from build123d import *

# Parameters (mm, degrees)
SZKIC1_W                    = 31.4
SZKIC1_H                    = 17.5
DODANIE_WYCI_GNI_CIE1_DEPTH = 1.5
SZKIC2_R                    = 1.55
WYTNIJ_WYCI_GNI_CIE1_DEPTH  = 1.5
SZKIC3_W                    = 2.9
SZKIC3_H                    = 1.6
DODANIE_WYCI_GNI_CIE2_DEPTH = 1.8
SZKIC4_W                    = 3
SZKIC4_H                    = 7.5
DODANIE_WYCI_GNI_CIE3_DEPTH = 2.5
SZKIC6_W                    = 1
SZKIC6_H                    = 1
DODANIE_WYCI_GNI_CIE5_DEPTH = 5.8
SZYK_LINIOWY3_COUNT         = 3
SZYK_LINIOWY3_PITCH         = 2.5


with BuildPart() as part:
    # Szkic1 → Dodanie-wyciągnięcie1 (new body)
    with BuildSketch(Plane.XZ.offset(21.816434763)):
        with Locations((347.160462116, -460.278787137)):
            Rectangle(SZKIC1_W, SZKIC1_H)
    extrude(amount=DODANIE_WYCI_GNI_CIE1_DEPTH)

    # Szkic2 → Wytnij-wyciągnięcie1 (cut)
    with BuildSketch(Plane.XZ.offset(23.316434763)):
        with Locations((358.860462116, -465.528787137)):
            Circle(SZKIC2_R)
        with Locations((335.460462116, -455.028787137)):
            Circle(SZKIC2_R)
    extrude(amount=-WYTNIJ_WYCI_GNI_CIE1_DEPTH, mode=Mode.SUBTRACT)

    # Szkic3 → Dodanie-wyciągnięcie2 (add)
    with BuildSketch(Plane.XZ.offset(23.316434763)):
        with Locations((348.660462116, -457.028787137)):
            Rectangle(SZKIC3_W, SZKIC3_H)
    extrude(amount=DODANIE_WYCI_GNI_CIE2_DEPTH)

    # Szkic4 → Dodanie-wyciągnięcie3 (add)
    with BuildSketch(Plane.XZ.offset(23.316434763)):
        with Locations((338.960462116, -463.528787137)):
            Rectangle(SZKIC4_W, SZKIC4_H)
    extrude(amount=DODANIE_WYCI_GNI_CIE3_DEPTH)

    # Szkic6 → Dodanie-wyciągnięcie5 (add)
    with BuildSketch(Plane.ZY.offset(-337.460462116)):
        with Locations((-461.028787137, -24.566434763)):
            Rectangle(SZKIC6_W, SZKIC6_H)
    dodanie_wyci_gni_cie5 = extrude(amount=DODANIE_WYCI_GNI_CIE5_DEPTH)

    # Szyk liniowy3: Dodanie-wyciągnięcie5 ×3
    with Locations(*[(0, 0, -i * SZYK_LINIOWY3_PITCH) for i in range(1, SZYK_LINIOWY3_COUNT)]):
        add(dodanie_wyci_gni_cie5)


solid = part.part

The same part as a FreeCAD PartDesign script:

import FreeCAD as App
import Part
import Sketcher


def add_polygon(sketch, points):
    """Adds a closed chain of lines whose ends are joined by coincident constraints."""
    first, n = sketch.GeometryCount, len(points)
    for a, b in zip(points, points[1:] + points[:1]):
        sketch.addGeometry(Part.LineSegment(App.Vector(*a, 0), App.Vector(*b, 0)), False)
    for i in range(n):
        sketch.addConstraint(Sketcher.Constraint("Coincident", first + i, 2, first + (i + 1) % n, 1))

doc = App.newDocument("Part")
body = doc.addObject("PartDesign::Body", "Body")

# Sketch on XZ plane
sketch1 = body.newObject("Sketcher::SketchObject", "Sketch")
sketch1.AttachmentSupport = (doc.getObject("XZ_Plane"), [""])
sketch1.MapMode = "FlatFace"
sketch1.AttachmentOffset = App.Placement(App.Vector(0, 0, 21.816435), App.Rotation())
add_polygon(sketch1, [(331, -452), (331, -469), (363, -469), (363, -452)])  # lines 0-3
sketch1.addConstraint([
    Sketcher.Constraint("Vertical", 0),
    Sketcher.Constraint("Horizontal", 1),
    Sketcher.Constraint("Vertical", 2),
    Sketcher.Constraint("Horizontal", 3),
    Sketcher.Constraint("DistanceX", 1, 1, 1, 2, 31.4),
    Sketcher.Constraint("DistanceY", 0, 2, 0, 1, 17.5),
    Sketcher.Constraint("DistanceX", -1, 1, 0, 2, 331.460462),
    Sketcher.Constraint("DistanceY", 0, 2, -1, 1, 469.028787),
])
pad1 = body.newObject("PartDesign::Pad", "Pad")
pad1.Profile = sketch1
pad1.Length = 1.5

# Sketch on XZ plane
sketch2 = body.newObject("Sketcher::SketchObject", "Sketch001")
sketch2.AttachmentSupport = (doc.getObject("XZ_Plane"), [""])
sketch2.MapMode = "FlatFace"
sketch2.AttachmentOffset = App.Placement(App.Vector(0, 0, 23.316435), App.Rotation())
sketch2.addGeometry([
    Part.Circle(App.Vector(358.9, -465.5, 0), App.Vector(0, 0, 1), 1.6),
    Part.Circle(App.Vector(335.5, -455, 0), App.Vector(0, 0, 1), 1.6),
], False)
sketch2.addConstraint([
    Sketcher.Constraint("Equal", 0, 1),
    Sketcher.Constraint("Diameter", 0, 3.1),
    Sketcher.Constraint("DistanceX", 1, 3, 0, 3, 23.4),
    Sketcher.Constraint("DistanceY", 0, 3, 1, 3, 10.5),
    Sketcher.Constraint("DistanceX", -1, 1, 0, 3, 358.860462),
    Sketcher.Constraint("DistanceY", 0, 3, -1, 1, 465.528787),
])
pocket1 = body.newObject("PartDesign::Pocket", "Pocket")
pocket1.Profile = sketch2
pocket1.Length = 1.5

# Sketch on XZ plane
sketch3 = body.newObject("Sketcher::SketchObject", "Sketch002")
sketch3.AttachmentSupport = (doc.getObject("XZ_Plane"), [""])
sketch3.MapMode = "FlatFace"
sketch3.AttachmentOffset = App.Placement(App.Vector(0, 0, 23.316435), App.Rotation())
add_polygon(sketch3, [(347.2, -456.2), (347.2, -457.8), (350.1, -457.8), (350.1, -456.2)])  # lines 0-3
sketch3.addConstraint([
    Sketcher.Constraint("Vertical", 0),
    Sketcher.Constraint("Horizontal", 1),
    Sketcher.Constraint("Vertical", 2),
    Sketcher.Constraint("Horizontal", 3),
    Sketcher.Constraint("DistanceX", 1, 1, 1, 2, 2.9),
    Sketcher.Constraint("DistanceY", 0, 2, 0, 1, 1.6),
    Sketcher.Constraint("DistanceX", -1, 1, 0, 2, 347.210462),
    Sketcher.Constraint("DistanceY", 0, 2, -1, 1, 457.828787),
])
pad2 = body.newObject("PartDesign::Pad", "Pad001")
pad2.Profile = sketch3
pad2.Length = 1.8

# Sketch on XZ plane
sketch4 = body.newObject("Sketcher::SketchObject", "Sketch003")
sketch4.AttachmentSupport = (doc.getObject("XZ_Plane"), [""])
sketch4.MapMode = "FlatFace"
sketch4.AttachmentOffset = App.Placement(App.Vector(0, 0, 23.316435), App.Rotation())
add_polygon(sketch4, [(337.5, -459.8), (337.5, -467.3), (340.5, -467.3), (340.5, -459.8)])  # lines 0-3
sketch4.addConstraint([
    Sketcher.Constraint("Vertical", 0),
    Sketcher.Constraint("Horizontal", 1),
    Sketcher.Constraint("Vertical", 2),
    Sketcher.Constraint("Horizontal", 3),
    Sketcher.Constraint("DistanceX", 1, 1, 1, 2, 3.0),
    Sketcher.Constraint("DistanceY", 0, 2, 0, 1, 7.5),
    Sketcher.Constraint("DistanceX", -1, 1, 0, 2, 337.460462),
    Sketcher.Constraint("DistanceY", 0, 2, -1, 1, 467.278787),
])
pad3 = body.newObject("PartDesign::Pad", "Pad002")
pad3.Profile = sketch4
pad3.Length = 2.5

# Sketch on YZ plane
sketch5 = body.newObject("Sketcher::SketchObject", "Sketch004")
sketch5.AttachmentSupport = (doc.getObject("YZ_Plane"), [""])
sketch5.MapMode = "FlatFace"
sketch5.AttachmentOffset = App.Placement(App.Vector(0, 0, 337.460462), App.Rotation())
add_polygon(sketch5, [(-24.1, -461.5), (-25.1, -461.5), (-25.1, -460.5), (-24.1, -460.5)])  # lines 0-3
sketch5.addConstraint([
    Sketcher.Constraint("Horizontal", 0),
    Sketcher.Constraint("Vertical", 1),
    Sketcher.Constraint("Horizontal", 2),
    Sketcher.Constraint("Vertical", 3),
    Sketcher.Constraint("Equal", 2, 1),
    Sketcher.Constraint("DistanceX", 0, 2, 0, 1, 1.0),
    Sketcher.Constraint("DistanceX", 0, 2, -1, 1, 25.066435),
    Sketcher.Constraint("DistanceY", 0, 2, -1, 1, 461.528787),
])
pad4 = body.newObject("PartDesign::Pad", "Pad003")
pad4.Profile = sketch5
pad4.Length = 5.8
pad4.Reversed = True
doc.recompute()

linearpattern = body.newObject("PartDesign::LinearPattern", "LinearPattern")
linearpattern.Originals = [pad4]
linearpattern.Direction = (doc.getObject("Z_Axis"), [""])
linearpattern.Mode = "offset"
linearpattern.Offset = 2.5
linearpattern.Occurrences = 3
linearpattern.Reversed = True
body.Tip = linearpattern

doc.recompute()
